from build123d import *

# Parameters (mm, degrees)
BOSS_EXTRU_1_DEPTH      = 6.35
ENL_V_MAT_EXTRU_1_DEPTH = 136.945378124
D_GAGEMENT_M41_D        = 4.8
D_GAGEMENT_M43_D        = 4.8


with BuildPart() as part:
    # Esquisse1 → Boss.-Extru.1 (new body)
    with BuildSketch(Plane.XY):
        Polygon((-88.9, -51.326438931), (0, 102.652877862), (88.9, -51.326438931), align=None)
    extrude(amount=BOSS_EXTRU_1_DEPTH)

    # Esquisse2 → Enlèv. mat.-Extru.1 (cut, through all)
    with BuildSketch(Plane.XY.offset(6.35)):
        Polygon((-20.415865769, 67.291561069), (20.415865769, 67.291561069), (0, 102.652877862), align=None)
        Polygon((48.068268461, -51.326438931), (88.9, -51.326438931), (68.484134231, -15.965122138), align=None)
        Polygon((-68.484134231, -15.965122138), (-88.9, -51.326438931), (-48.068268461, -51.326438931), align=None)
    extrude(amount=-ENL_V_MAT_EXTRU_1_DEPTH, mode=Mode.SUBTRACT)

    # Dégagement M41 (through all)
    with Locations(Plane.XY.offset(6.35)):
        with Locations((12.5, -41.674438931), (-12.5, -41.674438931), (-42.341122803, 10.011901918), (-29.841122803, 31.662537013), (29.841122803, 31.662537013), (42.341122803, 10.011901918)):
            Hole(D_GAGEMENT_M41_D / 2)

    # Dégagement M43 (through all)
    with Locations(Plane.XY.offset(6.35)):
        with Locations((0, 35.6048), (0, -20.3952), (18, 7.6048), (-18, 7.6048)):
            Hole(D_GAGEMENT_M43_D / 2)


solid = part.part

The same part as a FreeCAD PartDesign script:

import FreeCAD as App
import Part
import Sketcher
Q = App.Units.Quantity

doc = App.newDocument("Part")
params = doc.addObject("Spreadsheet::Sheet", "Params")
for row, (alias, value) in enumerate([
    ("sketch1_width", "7 in"),
    ("sketch1_length", "7 in"),
    ("pad1_length", "0.25 in"),
    ("hole_diameter", "4.8 mm"),
    ("hole2_diameter", "4.8 mm"),
], start=1):
    params.set(f"A{row}", alias)
    params.set(f"B{row}", "=" + value)
    params.setAlias(f"B{row}", alias)

body = doc.addObject("PartDesign::Body", "Body")

# Sketch on XY plane
sketch1 = doc.addObject("Sketcher::SketchObject", "Sketch")
body.addObject(sketch1)
sketch1.AttachmentSupport = (doc.XY_Plane, [""])
sketch1.MapMode = "FlatFace"
sketch1.addGeometry(Part.LineSegment(App.Vector(0, 102.652878, 0), App.Vector(-88.9, -51.326439, 0)), False)
sketch1.addGeometry(Part.LineSegment(App.Vector(-88.9, -51.326439, 0), App.Vector(88.9, -51.326439, 0)), False)
sketch1.addGeometry(Part.LineSegment(App.Vector(88.9, -51.326439, 0), App.Vector(0, 102.652878, 0)), False)
sketch1.addConstraint(Sketcher.Constraint("Coincident", 0, 2, 1, 1))
sketch1.addConstraint(Sketcher.Constraint("Coincident", 1, 2, 2, 1))
sketch1.addConstraint(Sketcher.Constraint("Coincident", 2, 2, 0, 1))
sketch1.addConstraint(Sketcher.Constraint("Horizontal", 1))
sketch1.addConstraint(Sketcher.Constraint("PointOnObject", 2, 2, -2))
sketch1.addConstraint(Sketcher.Constraint("Equal", 0, 2))
sketch1.addConstraint(Sketcher.Constraint("DistanceX", 1, 1, 1, 2, Q("7 in")))
sketch1.addConstraint(Sketcher.Constraint("Distance", 0, Q("7 in")))
sketch1.addConstraint(Sketcher.Constraint("DistanceY", 0, 2, -1, 1, 51.326439))
sketch1.setExpression("Constraints[6]", "Params.sketch1_width")
sketch1.setExpression("Constraints[7]", "Params.sketch1_length")
pad1 = doc.addObject("PartDesign::Pad", "Pad")
body.addObject(pad1)
pad1.Profile = sketch1
pad1.setExpression("Length", "Params.pad1_length")

# Sketch on XY plane
sketch2 = doc.addObject("Sketcher::SketchObject", "Sketch001")
body.addObject(sketch2)
sketch2.AttachmentSupport = (doc.XY_Plane, [""])
sketch2.MapMode = "FlatFace"
sketch2.AttachmentOffset = App.Placement(App.Vector(0, 0, 0.25 * 25.4), App.Rotation())
sketch2.addGeometry(Part.LineSegment(App.Vector(-20.415866, 67.291561, 0), App.Vector(20.415866, 67.291561, 0)), False)
sketch2.addGeometry(Part.LineSegment(App.Vector(20.415866, 67.291561, 0), App.Vector(0, 102.652878, 0)), False)
sketch2.addGeometry(Part.LineSegment(App.Vector(0, 102.652878, 0), App.Vector(-20.415866, 67.291561, 0)), False)
sketch2.addGeometry(Part.LineSegment(App.Vector(48.068268, -51.326439, 0), App.Vector(88.9, -51.326439, 0)), False)
sketch2.addGeometry(Part.LineSegment(App.Vector(88.9, -51.326439, 0), App.Vector(68.484134, -15.965122, 0)), False)
sketch2.addGeometry(Part.LineSegment(App.Vector(68.484134, -15.965122, 0), App.Vector(48.068268, -51.326439, 0)), False)
sketch2.addGeometry(Part.LineSegment(App.Vector(-68.484134, -15.965122, 0), App.Vector(-88.9, -51.326439, 0)), False)
sketch2.addGeometry(Part.LineSegment(App.Vector(-88.9, -51.326439, 0), App.Vector(-48.068268, -51.326439, 0)), False)
sketch2.addGeometry(Part.LineSegment(App.Vector(-48.068268, -51.326439, 0), App.Vector(-68.484134, -15.965122, 0)), False)
sketch2.addConstraint(Sketcher.Constraint("Coincident", 0, 2, 1, 1))
sketch2.addConstraint(Sketcher.Constraint("Coincident", 1, 2, 2, 1))
sketch2.addConstraint(Sketcher.Constraint("Coincident", 2, 2, 0, 1))
sketch2.addConstraint(Sketcher.Constraint("Coincident", 3, 2, 4, 1))
sketch2.addConstraint(Sketcher.Constraint("Coincident", 4, 2, 5, 1))
sketch2.addConstraint(Sketcher.Constraint("Coincident", 5, 2, 3, 1))
sketch2.addConstraint(Sketcher.Constraint("Coincident", 6, 2, 7, 1))
sketch2.addConstraint(Sketcher.Constraint("Coincident", 7, 2, 8, 1))
sketch2.addConstraint(Sketcher.Constraint("Coincident", 8, 2, 6, 1))
sketch2.addConstraint(Sketcher.Constraint("Horizontal", 0))
sketch2.addConstraint(Sketcher.Constraint("Horizontal", 3))
sketch2.addConstraint(Sketcher.Constraint("Horizontal", 7))
sketch2.addConstraint(Sketcher.Constraint("Symmetric", 3, 2, 6, 2, -2))
sketch2.addConstraint(Sketcher.Constraint("Symmetric", 4, 2, 8, 2, -2))
sketch2.addConstraint(Sketcher.Constraint("PointOnObject", 1, 2, -2))
sketch2.addConstraint(Sketcher.Constraint("Parallel", 1, 4))
sketch2.addConstraint(Sketcher.Constraint("Parallel", 2, 5))
sketch2.addConstraint(Sketcher.Constraint("Parallel", 5, 6))
sketch2.addConstraint(Sketcher.Constraint("Parallel", 4, 8))
sketch2.addConstraint(Sketcher.Constraint("Equal", 0, 3))
sketch2.addConstraint(Sketcher.Constraint("Angle", 1, Q("120 deg")))
sketch2.addConstraint(Sketcher.Constraint("DistanceX", 6, 2, 3, 2, Q("7 in")))
sketch2.addConstraint(Sketcher.Constraint("DistanceY", 3, 2, 0, 2, Q("4.67 in")))
sketch2.addConstraint(Sketcher.Constraint("DistanceX", 0, 1, 0, 2, 40.831732))
sketch2.addConstraint(Sketcher.Constraint("DistanceY", -1, 1, 0, 2, 67.291561))
pocket1 = doc.addObject("PartDesign::Pocket", "Pocket")
body.addObject(pocket1)
pocket1.Profile = sketch2
pocket1.Type = "ThroughAll"

# Sketch on XY plane
sketch3 = doc.addObject("Sketcher::SketchObject", "Sketch002")
body.addObject(sketch3)
sketch3.AttachmentSupport = (doc.XY_Plane, [""])
sketch3.MapMode = "FlatFace"
sketch3.AttachmentOffset = App.Placement(App.Vector(0, 0, 0.25 * 25.4), App.Rotation())
sketch3.addGeometry(Part.Circle(App.Vector(12.5, -41.674439, 0), App.Vector(0, 0, 1), 2.4), False)
sketch3.addGeometry(Part.Circle(App.Vector(-12.5, -41.674439, 0), App.Vector(0, 0, 1), 2.4), False)
sketch3.addGeometry(Part.Circle(App.Vector(-42.341123, 10.011902, 0), App.Vector(0, 0, 1), 2.4), False)
sketch3.addGeometry(Part.Circle(App.Vector(-29.841123, 31.662537, 0), App.Vector(0, 0, 1), 2.4), False)
sketch3.addGeometry(Part.Circle(App.Vector(29.841123, 31.662537, 0), App.Vector(0, 0, 1), 2.4), False)
sketch3.addGeometry(Part.Circle(App.Vector(42.341123, 10.011902, 0), App.Vector(0, 0, 1), 2.4), False)
sketch3.addConstraint(Sketcher.Constraint("Equal", 0, 1))
sketch3.addConstraint(Sketcher.Constraint("Equal", 1, 2))
sketch3.addConstraint(Sketcher.Constraint("Equal", 2, 3))
sketch3.addConstraint(Sketcher.Constraint("Equal", 3, 4))
sketch3.addConstraint(Sketcher.Constraint("Equal", 4, 5))
sketch3.addConstraint(Sketcher.Constraint("Symmetric", 0, 3, 1, 3, -2))
sketch3.addConstraint(Sketcher.Constraint("Symmetric", 3, 3, 4, 3, -2))
sketch3.addConstraint(Sketcher.Constraint("Symmetric", 2, 3, 5, 3, -2))
sketch3.addConstraint(Sketcher.Constraint("Diameter", 0, 4.8))
sketch3.addConstraint(Sketcher.Constraint("DistanceX", -1, 1, 0, 3, 12.5))
sketch3.addConstraint(Sketcher.Constraint("DistanceY", -1, 1, 2, 3, 10.011902))
sketch3.addConstraint(Sketcher.Constraint("DistanceX", 2, 3, 3, 3, 12.5))
sketch3.addConstraint(Sketcher.Constraint("DistanceY", 0, 3, -1, 1, 41.674439))
sketch3.addConstraint(Sketcher.Constraint("DistanceX", 2, 3, -1, 1, 42.341123))
sketch3.addConstraint(Sketcher.Constraint("DistanceY", -1, 1, 3, 3, 31.662537))
doc.recompute()
hole = doc.addObject("PartDesign::Hole", "Hole")
body.addObject(hole)
hole.Profile = sketch3
hole.ThreadType = "None"
hole.setExpression("Diameter", "Params.hole_diameter")
hole.DepthType = "ThroughAll"

# Sketch on XY plane
sketch4 = doc.addObject("Sketcher::SketchObject", "Sketch003")
body.addObject(sketch4)
sketch4.AttachmentSupport = (doc.XY_Plane, [""])
sketch4.MapMode = "FlatFace"
sketch4.AttachmentOffset = App.Placement(App.Vector(0, 0, 0.25 * 25.4), App.Rotation())
sketch4.addGeometry(Part.Circle(App.Vector(0, 35.6048, 0), App.Vector(0, 0, 1), 2.4), False)
sketch4.addGeometry(Part.Circle(App.Vector(0, -20.3952, 0), App.Vector(0, 0, 1), 2.4), False)
sketch4.addGeometry(Part.Circle(App.Vector(18, 7.6048, 0), App.Vector(0, 0, 1), 2.4), False)
sketch4.addGeometry(Part.Circle(App.Vector(-18, 7.6048, 0), App.Vector(0, 0, 1), 2.4), False)
sketch4.addConstraint(Sketcher.Constraint("Equal", 0, 1))
sketch4.addConstraint(Sketcher.Constraint("Equal", 1, 2))
sketch4.addConstraint(Sketcher.Constraint("Equal", 2, 3))
sketch4.addConstraint(Sketcher.Constraint("Symmetric", 2, 3, 3, 3, -2))
sketch4.addConstraint(Sketcher.Constraint("PointOnObject", 0, 3, -2))
sketch4.addConstraint(Sketcher.Constraint("PointOnObject", 1, 3, -2))
sketch4.addConstraint(Sketcher.Constraint("Diameter", 0, 4.8))
sketch4.addConstraint(Sketcher.Constraint("DistanceY", -1, 1, 0, 3, 35.6048))
sketch4.addConstraint(Sketcher.Constraint("DistanceY", 1, 3, -1, 1, 20.3952))
sketch4.addConstraint(Sketcher.Constraint("DistanceX", -1, 1, 2, 3, 18.0))
sketch4.addConstraint(Sketcher.Constraint("DistanceY", -1, 1, 2, 3, 7.6048))
doc.recompute()
hole2 = doc.addObject("PartDesign::Hole", "Hole001")
body.addObject(hole2)
hole2.Profile = sketch4
hole2.ThreadType = "None"
hole2.setExpression("Diameter", "Params.hole2_diameter")
hole2.DepthType = "ThroughAll"

doc.recompute()
